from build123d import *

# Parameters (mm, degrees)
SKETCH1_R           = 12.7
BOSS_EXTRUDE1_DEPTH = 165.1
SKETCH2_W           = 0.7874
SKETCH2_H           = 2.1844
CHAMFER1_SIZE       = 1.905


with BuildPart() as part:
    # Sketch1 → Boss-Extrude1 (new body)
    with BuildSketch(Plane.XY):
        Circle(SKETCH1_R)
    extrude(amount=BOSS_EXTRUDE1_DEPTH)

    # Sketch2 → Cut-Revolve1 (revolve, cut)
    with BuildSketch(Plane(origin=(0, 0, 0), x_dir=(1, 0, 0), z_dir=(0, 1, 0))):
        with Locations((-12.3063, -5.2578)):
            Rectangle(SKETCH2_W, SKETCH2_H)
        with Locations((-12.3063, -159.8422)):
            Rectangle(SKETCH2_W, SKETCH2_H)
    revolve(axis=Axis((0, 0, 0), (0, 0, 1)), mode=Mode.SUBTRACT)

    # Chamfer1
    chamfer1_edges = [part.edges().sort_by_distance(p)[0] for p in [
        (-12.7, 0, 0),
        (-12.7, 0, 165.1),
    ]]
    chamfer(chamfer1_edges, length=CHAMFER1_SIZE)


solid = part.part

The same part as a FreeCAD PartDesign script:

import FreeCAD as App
import Part
import Sketcher
from FreeCAD import Vector
Q = App.Units.Quantity


def edges_at(feature, points):
    """Names of the edges that pass closest to the given points."""
    edges = feature.Shape.Edges
    near = lambda p: min(range(len(edges)), key=lambda i: edges[i].distToShape(Part.Vertex(*p))[0])
    return sorted({f"Edge{near(p) + 1}" for p in points})


def add_polygon(sketch, points):
    """Adds a closed chain of lines whose ends are joined by coincident constraints."""
    first, n = sketch.GeometryCount, len(points)
    for a, b in zip(points, points[1:] + points[:1]):
        sketch.addGeometry(Part.LineSegment(App.Vector(*a, 0), App.Vector(*b, 0)), False)
    for i in range(n):
        sketch.addConstraint(Sketcher.Constraint("Coincident", first + i, 2, first + (i + 1) % n, 1))

doc = App.newDocument("Part")
body = doc.addObject("PartDesign::Body", "Body")

sketch1 = body.newObject("Sketcher::SketchObject", "Sketch")
sketch1.AttachmentSupport = (doc.getObject("XY_Plane"), [""])
sketch1.MapMode = "FlatFace"
sketch1.addGeometry(Part.Circle(Vector(0, 0, 0), Vector(0, 0, 1), 13), False)
sketch1.addConstraint(Sketcher.Constraint("Coincident", 0, 3, -1, 1))
sketch1.addConstraint(Sketcher.Constraint("Diameter", 0, Q("1 in")))
pad1 = body.newObject("PartDesign::Pad", "Pad")
pad1.Profile = sketch1
pad1.Length = Q("6.5 in")

sketch2 = body.newObject("Sketcher::SketchObject", "Sketch001")
sketch2.AttachmentSupport = (doc.getObject("XZ_Plane"), [""])
sketch2.MapMode = "FlatFace"
add_polygon(sketch2, [(-12.7, 4.2), (-12.7, 6.3), (-11.9, 6.3), (-11.9, 4.2)])
add_polygon(sketch2, [(-12.7, 158.8), (-12.7, 160.9), (-11.9, 160.9), (-11.9, 158.8)])
sketch2.addConstraint(Sketcher.Constraint("Vertical", 0))
sketch2.addConstraint(Sketcher.Constraint("Horizontal", 1))
sketch2.addConstraint(Sketcher.Constraint("Vertical", 2))
sketch2.addConstraint(Sketcher.Constraint("Horizontal", 3))
sketch2.addConstraint(Sketcher.Constraint("Vertical", 4))
sketch2.addConstraint(Sketcher.Constraint("Horizontal", 5))
sketch2.addConstraint(Sketcher.Constraint("Vertical", 6))
sketch2.addConstraint(Sketcher.Constraint("Horizontal", 7))
sketch2.addConstraint(Sketcher.Constraint("Vertical", 3, 2, 4, 2))
sketch2.addConstraint(Sketcher.Constraint("Vertical", 2, 2, 5, 2))
sketch2.addConstraint(Sketcher.Constraint("Equal", 2, 4))
sketch2.addConstraint(Sketcher.Constraint("DistanceY", 1, 2, 6, 2, Q("6 in")))
sketch2.addConstraint(Sketcher.Constraint("DistanceX", 0, 2, -1, 1, Q("0.5 in")))
sketch2.addConstraint(Sketcher.Constraint("DistanceX", 1, 1, 1, 2, Q("0.031 in")))
sketch2.addConstraint(Sketcher.Constraint("DistanceY", 0, 1, 0, 2, Q("0.086 in")))
sketch2.addConstraint(Sketcher.Constraint("DistanceY", -1, 1, 0, 2, Q("0.25 in")))
groove = body.newObject("PartDesign::Groove", "Groove")
groove.Profile = sketch2
groove.ReferenceAxis = (sketch2, ["V_Axis"])
groove.Angle = 360
doc.recompute()

chamfer = body.newObject("PartDesign::Chamfer", "Chamfer")
chamfer.Base = (groove, edges_at(groove, [(-12.7, 0, 0), (-12.7, 0, 165.1)]))
chamfer.Size = Q("0.075 in")

doc.recompute()
